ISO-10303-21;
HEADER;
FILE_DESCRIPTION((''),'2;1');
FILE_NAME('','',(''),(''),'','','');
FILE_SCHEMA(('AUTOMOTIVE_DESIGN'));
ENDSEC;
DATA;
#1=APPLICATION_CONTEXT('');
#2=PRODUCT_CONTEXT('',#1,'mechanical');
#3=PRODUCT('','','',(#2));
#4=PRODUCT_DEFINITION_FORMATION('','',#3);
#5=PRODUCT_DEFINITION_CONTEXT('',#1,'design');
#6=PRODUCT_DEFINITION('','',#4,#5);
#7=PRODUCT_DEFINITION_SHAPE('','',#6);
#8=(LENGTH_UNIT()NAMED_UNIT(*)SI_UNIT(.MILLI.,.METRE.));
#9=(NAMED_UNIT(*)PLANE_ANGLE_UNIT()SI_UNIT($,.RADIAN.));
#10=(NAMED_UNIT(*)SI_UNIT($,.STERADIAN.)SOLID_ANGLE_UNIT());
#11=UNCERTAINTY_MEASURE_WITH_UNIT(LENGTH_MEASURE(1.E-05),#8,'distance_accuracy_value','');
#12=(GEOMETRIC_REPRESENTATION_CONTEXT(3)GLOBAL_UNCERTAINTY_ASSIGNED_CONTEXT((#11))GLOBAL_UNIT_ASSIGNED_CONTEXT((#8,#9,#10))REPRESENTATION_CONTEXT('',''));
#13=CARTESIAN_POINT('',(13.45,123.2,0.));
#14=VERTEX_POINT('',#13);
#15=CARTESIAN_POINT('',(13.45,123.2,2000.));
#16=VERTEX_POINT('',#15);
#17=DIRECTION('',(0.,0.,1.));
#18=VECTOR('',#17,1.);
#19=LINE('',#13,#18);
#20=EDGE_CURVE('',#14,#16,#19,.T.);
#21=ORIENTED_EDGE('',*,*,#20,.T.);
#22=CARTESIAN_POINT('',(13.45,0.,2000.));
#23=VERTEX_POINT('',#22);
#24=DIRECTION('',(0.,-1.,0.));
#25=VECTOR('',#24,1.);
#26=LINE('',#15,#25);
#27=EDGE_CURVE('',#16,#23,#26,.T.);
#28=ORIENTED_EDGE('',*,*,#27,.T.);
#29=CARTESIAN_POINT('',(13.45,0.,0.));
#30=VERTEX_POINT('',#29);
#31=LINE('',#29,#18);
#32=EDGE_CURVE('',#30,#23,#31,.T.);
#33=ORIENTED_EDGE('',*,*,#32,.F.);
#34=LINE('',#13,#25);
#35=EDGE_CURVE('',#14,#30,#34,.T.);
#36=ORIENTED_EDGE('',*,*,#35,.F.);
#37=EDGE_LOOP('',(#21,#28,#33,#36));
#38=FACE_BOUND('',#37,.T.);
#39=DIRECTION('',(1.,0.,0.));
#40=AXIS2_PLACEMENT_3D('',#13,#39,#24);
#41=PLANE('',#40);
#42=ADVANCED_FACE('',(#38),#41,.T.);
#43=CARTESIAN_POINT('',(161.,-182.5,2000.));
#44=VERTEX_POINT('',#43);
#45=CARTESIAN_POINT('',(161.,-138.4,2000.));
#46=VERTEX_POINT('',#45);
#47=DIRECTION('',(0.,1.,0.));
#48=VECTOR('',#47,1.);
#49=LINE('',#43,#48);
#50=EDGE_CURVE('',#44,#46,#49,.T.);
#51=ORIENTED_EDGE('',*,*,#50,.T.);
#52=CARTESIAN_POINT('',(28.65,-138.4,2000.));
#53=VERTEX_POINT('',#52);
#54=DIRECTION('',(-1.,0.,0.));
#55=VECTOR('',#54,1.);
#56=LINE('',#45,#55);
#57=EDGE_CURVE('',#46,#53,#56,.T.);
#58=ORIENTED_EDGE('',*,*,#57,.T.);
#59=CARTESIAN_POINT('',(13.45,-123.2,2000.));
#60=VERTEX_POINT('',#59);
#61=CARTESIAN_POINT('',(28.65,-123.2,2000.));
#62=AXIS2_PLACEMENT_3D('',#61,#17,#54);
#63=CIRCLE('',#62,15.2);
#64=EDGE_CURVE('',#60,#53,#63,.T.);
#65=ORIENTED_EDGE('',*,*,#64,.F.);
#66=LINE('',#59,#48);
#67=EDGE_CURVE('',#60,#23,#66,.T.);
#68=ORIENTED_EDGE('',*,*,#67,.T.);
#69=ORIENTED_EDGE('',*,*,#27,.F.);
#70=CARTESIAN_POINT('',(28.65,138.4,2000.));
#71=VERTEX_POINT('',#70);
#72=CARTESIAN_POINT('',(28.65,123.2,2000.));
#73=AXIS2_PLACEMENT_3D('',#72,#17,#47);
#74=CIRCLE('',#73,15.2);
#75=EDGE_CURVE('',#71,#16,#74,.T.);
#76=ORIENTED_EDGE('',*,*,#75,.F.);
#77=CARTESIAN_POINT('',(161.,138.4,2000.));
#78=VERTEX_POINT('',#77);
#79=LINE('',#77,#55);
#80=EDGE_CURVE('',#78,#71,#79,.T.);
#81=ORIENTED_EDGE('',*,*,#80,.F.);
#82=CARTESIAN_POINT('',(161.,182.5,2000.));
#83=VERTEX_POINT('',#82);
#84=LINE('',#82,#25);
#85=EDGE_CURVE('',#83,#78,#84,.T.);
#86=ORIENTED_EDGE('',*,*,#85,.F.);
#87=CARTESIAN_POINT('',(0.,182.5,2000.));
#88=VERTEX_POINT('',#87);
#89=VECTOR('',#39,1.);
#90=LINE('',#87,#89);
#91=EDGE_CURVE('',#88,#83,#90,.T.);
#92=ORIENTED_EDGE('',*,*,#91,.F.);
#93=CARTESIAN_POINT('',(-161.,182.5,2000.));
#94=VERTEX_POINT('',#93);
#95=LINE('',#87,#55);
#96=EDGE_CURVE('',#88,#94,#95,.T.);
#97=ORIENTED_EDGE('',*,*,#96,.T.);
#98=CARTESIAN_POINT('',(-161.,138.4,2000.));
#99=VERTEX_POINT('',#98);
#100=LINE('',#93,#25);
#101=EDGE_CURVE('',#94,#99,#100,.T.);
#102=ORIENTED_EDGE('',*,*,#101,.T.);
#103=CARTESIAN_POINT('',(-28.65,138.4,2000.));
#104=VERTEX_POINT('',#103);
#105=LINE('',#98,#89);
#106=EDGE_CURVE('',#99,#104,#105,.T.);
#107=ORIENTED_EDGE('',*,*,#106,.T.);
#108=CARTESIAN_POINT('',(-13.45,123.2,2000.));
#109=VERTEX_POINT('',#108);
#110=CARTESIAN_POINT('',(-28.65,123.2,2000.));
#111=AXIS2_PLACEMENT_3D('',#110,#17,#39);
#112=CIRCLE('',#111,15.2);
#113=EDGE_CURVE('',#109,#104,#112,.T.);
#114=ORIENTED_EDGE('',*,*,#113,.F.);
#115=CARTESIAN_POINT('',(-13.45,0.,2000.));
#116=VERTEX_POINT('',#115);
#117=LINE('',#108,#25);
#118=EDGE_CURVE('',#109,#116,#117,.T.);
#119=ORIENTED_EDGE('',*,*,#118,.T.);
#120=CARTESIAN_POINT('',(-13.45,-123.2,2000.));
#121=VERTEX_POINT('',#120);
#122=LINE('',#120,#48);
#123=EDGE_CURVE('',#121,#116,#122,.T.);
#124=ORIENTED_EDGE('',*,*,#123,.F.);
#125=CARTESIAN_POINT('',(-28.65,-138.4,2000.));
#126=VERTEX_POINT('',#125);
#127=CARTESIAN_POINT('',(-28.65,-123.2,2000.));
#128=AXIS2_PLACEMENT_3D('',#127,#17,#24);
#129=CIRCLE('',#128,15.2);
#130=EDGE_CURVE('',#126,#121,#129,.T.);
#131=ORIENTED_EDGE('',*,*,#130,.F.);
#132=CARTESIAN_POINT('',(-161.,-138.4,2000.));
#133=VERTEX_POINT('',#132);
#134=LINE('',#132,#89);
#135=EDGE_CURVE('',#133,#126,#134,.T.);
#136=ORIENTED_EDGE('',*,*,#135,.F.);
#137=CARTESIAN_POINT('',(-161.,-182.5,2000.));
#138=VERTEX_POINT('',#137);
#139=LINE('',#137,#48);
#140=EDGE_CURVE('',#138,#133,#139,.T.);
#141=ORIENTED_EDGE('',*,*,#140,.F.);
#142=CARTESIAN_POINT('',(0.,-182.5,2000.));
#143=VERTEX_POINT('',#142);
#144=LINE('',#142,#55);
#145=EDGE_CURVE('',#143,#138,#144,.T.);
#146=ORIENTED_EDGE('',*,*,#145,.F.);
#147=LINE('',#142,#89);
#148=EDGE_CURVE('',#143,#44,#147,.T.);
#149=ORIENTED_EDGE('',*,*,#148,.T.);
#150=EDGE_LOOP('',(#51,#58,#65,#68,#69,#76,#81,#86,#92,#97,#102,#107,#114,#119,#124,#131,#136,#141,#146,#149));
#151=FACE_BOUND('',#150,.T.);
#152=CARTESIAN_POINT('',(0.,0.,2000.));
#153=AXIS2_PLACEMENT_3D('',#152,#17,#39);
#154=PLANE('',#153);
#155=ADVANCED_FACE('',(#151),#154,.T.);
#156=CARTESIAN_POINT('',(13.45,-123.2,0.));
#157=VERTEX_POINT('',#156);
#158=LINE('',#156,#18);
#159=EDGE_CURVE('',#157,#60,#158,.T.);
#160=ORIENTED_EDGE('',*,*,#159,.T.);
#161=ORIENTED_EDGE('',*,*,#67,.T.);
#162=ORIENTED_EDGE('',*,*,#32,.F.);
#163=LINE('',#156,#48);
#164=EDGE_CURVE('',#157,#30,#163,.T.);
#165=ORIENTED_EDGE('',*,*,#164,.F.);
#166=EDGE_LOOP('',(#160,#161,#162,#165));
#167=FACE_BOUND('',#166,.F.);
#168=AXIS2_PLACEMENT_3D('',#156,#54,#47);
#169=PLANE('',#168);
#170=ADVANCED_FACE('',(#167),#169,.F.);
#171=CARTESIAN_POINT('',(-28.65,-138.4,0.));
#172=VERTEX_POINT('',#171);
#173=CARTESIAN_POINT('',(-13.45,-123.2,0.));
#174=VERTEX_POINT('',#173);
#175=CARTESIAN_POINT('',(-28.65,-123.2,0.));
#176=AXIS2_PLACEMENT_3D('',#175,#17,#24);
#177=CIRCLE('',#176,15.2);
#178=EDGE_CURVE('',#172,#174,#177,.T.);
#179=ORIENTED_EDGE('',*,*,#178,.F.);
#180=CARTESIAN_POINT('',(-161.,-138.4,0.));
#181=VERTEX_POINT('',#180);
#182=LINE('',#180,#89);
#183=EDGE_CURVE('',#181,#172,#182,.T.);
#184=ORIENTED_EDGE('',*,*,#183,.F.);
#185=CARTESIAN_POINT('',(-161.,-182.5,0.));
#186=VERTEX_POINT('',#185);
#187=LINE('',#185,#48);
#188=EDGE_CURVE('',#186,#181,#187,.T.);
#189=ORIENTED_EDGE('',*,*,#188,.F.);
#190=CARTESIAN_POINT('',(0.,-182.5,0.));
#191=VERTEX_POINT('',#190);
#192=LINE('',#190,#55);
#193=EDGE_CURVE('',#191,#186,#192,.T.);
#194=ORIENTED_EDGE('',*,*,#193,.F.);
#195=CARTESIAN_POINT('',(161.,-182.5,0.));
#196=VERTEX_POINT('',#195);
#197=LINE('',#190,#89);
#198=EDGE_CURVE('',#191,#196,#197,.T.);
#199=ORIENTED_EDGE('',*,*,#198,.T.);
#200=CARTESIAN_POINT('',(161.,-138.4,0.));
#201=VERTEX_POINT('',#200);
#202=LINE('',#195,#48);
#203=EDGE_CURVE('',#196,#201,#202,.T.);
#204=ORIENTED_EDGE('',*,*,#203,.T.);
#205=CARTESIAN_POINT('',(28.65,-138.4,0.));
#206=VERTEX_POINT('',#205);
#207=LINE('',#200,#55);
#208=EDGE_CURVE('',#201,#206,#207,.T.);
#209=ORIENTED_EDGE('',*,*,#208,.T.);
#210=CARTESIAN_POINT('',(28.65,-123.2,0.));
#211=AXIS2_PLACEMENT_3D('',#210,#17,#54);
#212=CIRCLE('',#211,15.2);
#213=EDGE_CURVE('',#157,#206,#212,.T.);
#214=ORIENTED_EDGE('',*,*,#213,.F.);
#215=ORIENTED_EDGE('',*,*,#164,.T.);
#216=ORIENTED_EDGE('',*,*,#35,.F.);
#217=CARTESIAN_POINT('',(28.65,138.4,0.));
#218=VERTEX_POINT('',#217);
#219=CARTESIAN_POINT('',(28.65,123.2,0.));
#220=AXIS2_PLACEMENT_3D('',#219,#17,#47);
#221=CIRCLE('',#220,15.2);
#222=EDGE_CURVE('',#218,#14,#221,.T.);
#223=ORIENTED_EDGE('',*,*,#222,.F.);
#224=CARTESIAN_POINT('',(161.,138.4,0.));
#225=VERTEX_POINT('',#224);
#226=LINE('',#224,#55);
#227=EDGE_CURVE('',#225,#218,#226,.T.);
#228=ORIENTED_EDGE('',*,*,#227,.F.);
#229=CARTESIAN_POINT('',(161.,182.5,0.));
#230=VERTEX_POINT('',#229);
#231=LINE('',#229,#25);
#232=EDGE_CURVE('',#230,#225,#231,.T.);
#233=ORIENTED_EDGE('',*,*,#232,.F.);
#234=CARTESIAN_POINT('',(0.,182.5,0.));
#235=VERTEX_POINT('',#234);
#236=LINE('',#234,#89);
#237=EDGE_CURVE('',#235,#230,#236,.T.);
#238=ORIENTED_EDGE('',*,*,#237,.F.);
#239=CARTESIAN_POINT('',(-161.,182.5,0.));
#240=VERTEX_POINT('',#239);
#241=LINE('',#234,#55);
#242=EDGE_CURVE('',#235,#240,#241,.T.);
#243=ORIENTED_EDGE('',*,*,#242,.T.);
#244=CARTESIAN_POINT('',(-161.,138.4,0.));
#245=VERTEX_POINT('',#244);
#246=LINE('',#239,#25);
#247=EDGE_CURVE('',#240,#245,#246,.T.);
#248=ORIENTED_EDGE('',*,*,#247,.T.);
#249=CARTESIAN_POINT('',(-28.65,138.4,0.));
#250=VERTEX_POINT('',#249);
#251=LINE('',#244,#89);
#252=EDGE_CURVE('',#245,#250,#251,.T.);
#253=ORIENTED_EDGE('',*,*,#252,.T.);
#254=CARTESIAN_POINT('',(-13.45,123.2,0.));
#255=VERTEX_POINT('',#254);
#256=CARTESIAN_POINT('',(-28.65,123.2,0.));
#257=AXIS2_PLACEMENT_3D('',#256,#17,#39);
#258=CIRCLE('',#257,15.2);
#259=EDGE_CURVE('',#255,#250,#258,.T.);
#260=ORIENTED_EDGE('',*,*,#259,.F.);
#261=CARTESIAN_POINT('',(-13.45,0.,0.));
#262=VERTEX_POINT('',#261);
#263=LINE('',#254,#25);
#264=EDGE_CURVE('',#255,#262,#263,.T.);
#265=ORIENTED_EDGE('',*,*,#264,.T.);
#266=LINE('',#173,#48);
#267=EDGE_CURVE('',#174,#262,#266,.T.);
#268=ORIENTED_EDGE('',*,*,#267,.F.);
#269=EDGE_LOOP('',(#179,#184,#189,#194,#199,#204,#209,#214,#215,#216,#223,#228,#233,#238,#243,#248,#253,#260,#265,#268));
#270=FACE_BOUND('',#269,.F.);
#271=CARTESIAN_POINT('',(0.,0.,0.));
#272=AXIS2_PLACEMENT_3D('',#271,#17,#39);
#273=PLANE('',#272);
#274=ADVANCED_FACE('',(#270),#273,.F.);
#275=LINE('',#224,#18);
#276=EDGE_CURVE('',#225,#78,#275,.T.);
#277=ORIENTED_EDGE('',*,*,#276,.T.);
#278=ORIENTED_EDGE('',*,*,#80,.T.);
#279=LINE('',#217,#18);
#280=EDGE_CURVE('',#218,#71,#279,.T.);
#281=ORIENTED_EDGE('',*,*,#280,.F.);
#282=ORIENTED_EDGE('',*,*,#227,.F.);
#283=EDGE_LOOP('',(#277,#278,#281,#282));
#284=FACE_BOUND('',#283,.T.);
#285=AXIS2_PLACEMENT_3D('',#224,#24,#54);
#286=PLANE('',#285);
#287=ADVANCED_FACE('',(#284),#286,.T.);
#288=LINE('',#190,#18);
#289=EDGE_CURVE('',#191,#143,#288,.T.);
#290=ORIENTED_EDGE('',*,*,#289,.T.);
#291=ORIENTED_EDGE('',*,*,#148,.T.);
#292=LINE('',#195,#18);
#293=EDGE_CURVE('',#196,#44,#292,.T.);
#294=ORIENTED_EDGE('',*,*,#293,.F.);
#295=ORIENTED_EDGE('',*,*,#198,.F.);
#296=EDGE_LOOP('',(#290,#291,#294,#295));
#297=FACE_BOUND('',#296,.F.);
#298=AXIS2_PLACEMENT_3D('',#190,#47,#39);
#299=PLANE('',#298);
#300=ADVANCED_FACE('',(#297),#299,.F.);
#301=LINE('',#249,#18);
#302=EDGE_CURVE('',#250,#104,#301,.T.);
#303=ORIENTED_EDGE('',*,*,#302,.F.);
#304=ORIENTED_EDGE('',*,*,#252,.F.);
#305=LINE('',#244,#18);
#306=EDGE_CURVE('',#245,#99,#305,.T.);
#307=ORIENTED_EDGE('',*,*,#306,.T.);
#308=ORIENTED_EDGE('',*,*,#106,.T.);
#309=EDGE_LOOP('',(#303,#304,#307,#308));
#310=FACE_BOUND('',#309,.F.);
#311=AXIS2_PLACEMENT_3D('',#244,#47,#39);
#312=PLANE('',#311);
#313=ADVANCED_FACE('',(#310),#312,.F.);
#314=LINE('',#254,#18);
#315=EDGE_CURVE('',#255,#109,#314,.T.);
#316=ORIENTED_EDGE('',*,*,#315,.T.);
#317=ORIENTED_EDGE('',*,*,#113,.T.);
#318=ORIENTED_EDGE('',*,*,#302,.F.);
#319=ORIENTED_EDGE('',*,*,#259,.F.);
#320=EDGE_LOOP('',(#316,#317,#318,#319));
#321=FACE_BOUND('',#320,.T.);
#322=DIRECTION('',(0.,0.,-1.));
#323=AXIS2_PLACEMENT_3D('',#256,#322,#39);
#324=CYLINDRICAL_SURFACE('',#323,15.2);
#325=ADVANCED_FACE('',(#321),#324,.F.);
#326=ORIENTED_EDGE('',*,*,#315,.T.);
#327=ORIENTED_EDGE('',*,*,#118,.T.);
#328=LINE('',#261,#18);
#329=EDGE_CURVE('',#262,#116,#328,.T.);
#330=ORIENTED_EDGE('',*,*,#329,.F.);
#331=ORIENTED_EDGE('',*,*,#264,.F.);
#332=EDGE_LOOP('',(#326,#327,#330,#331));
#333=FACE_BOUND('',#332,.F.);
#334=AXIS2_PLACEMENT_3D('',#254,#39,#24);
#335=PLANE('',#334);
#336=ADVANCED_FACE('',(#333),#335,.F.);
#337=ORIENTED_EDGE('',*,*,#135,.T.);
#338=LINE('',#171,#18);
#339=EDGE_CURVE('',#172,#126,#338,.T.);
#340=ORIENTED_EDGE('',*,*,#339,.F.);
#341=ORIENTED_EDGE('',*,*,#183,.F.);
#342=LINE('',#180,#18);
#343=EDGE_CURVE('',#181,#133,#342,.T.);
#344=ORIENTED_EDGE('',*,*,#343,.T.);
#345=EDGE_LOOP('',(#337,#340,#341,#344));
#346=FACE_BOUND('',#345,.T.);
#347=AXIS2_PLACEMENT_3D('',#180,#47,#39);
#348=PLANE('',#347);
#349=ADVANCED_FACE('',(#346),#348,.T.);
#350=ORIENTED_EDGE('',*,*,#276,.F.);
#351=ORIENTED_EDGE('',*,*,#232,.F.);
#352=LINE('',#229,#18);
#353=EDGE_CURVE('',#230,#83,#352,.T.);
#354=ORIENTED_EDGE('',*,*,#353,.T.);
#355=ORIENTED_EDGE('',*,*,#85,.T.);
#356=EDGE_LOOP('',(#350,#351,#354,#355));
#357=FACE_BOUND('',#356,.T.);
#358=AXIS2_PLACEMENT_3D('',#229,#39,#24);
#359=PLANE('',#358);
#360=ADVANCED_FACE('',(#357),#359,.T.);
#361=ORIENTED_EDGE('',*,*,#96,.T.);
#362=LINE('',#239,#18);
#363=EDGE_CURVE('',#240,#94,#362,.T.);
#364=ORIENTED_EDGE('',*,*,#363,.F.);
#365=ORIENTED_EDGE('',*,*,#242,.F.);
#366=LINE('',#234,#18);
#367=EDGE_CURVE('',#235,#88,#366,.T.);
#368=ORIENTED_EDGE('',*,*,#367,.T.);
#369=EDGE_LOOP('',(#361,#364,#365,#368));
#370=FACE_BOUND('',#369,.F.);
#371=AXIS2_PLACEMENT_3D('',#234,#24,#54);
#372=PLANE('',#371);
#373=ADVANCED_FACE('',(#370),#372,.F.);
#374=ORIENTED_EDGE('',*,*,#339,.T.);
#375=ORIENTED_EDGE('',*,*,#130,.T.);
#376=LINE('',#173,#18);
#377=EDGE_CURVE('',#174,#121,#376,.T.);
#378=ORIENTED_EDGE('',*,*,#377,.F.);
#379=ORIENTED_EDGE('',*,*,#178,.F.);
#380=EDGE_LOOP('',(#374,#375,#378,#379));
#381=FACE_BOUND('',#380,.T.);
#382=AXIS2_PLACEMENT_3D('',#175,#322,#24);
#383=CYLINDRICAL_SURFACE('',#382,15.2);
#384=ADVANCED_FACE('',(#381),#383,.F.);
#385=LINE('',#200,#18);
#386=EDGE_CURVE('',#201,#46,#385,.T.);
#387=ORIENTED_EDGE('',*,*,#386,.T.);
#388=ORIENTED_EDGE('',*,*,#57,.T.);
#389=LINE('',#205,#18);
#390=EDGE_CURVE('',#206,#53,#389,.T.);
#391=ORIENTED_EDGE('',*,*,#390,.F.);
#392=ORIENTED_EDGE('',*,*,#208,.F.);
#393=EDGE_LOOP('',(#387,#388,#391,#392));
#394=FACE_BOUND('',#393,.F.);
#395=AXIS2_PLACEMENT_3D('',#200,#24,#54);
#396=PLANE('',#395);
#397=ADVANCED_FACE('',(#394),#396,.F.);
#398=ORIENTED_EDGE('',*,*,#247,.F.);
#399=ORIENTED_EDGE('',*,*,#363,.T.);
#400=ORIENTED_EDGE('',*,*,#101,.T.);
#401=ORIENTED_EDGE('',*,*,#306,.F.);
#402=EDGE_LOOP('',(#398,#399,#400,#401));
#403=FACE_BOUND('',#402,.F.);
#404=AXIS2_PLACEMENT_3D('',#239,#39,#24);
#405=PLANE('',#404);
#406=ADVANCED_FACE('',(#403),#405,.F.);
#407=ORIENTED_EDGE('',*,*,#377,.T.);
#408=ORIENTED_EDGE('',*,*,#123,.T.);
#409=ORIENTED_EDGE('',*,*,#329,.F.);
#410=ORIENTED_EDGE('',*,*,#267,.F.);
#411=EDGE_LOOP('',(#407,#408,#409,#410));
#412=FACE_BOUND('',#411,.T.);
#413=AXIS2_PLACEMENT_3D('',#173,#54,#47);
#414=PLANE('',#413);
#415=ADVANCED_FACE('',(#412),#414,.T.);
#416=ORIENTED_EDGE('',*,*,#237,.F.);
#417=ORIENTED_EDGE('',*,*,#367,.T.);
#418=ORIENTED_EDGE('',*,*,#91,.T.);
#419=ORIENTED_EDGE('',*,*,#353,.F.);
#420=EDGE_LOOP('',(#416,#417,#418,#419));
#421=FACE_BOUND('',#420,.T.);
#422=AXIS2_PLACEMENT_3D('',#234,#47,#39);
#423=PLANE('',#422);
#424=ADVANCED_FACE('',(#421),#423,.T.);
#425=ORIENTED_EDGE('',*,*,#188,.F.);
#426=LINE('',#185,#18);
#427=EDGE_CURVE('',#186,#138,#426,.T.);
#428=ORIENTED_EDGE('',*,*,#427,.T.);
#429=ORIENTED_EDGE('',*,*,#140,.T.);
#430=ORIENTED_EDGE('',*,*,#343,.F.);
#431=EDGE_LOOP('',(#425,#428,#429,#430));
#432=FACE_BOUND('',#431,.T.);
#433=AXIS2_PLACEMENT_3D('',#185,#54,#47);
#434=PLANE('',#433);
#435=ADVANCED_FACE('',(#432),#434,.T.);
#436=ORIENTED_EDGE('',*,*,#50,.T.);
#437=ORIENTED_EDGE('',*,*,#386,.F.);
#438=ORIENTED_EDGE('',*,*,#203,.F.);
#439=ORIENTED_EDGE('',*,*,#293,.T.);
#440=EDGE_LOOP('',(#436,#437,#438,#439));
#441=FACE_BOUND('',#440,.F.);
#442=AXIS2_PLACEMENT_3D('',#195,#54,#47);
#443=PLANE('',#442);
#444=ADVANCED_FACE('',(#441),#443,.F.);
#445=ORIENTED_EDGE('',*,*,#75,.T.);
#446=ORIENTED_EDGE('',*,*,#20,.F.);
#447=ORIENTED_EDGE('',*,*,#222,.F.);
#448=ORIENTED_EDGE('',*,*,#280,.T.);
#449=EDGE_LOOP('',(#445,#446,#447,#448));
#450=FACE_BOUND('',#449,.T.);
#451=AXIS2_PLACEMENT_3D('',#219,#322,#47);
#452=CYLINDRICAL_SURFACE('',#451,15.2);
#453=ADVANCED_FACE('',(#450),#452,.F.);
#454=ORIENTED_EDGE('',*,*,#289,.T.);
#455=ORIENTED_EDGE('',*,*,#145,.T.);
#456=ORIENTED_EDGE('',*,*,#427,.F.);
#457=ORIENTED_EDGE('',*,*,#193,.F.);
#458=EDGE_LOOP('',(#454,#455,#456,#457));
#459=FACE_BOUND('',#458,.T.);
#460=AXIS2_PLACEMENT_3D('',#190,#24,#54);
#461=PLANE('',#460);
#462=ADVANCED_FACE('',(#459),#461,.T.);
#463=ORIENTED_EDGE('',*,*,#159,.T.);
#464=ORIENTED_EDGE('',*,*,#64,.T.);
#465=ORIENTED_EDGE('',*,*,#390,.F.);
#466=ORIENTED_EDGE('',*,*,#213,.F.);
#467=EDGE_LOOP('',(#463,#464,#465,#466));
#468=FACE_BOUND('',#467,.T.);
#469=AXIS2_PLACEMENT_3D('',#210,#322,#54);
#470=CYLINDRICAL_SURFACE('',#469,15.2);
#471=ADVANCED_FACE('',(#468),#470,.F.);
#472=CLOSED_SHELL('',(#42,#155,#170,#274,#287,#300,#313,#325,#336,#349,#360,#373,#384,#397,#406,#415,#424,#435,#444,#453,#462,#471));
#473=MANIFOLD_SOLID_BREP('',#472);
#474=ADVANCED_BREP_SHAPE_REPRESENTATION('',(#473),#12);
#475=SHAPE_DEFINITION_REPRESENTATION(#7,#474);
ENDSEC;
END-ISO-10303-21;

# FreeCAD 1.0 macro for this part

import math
import FreeCAD as App
import Part
import Sketcher
from FreeCAD import Vector

doc = App.newDocument("Part")
body = doc.addObject("PartDesign::Body", "Body")

# Sketch on XY plane
sketch1 = body.newObject("Sketcher::SketchObject", "Sketch")
sketch1.AttachmentSupport = (doc.getObject("XY_Plane"), [""])
sketch1.MapMode = "FlatFace"
sketch1.addGeometry([
    Part.LineSegment(Vector(-161, -138, 0), Vector(-161, -182, 0)),  # 0
    Part.LineSegment(Vector(-161, -182, 0), Vector(161, -182, 0)),  # 1
    Part.LineSegment(Vector(161, -182, 0), Vector(161, -138, 0)),  # 2
    Part.LineSegment(Vector(161, -138, 0), Vector(29, -138, 0)),  # 3
    Part.ArcOfCircle(Part.Circle(Vector(29, -123, 0), Vector(0, 0, 1), 15), math.radians(180), math.radians(270)),  # 4
    Part.LineSegment(Vector(13, -123, 0), Vector(13, 123, 0)),  # 5
    Part.ArcOfCircle(Part.Circle(Vector(29, 123, 0), Vector(0, 0, 1), 15), math.radians(90), math.radians(180)),  # 6
    Part.LineSegment(Vector(29, 138, 0), Vector(161, 138, 0)),  # 7
    Part.LineSegment(Vector(161, 138, 0), Vector(161, 182, 0)),  # 8
    Part.LineSegment(Vector(161, 182, 0), Vector(-161, 182, 0)),  # 9
    Part.LineSegment(Vector(-161, 182, 0), Vector(-161, 138, 0)),  # 10
    Part.LineSegment(Vector(-161, 138, 0), Vector(-29, 138, 0)),  # 11
    Part.ArcOfCircle(Part.Circle(Vector(-29, 123, 0), Vector(0, 0, 1), 15), math.radians(0), math.radians(90)),  # 12
    Part.LineSegment(Vector(-13, 123, 0), Vector(-13, -123, 0)),  # 13
    Part.ArcOfCircle(Part.Circle(Vector(-29, -123, 0), Vector(0, 0, 1), 15), math.radians(-90), math.radians(0)),  # 14
    Part.LineSegment(Vector(-29, -138, 0), Vector(-161, -138, 0)),  # 15
], False)
sketch1.addConstraint([
    Sketcher.Constraint("Coincident", 0, 2, 1, 1),
    Sketcher.Constraint("Coincident", 1, 2, 2, 1),
    Sketcher.Constraint("Coincident", 2, 2, 3, 1),
    Sketcher.Constraint("Tangent", 3, 2, 4, 2),
    Sketcher.Constraint("Tangent", 4, 1, 5, 1),
    Sketcher.Constraint("Tangent", 5, 2, 6, 2),
    Sketcher.Constraint("Tangent", 6, 1, 7, 1),
    Sketcher.Constraint("Coincident", 7, 2, 8, 1),
    Sketcher.Constraint("Coincident", 8, 2, 9, 1),
    Sketcher.Constraint("Coincident", 9, 2, 10, 1),
    Sketcher.Constraint("Coincident", 10, 2, 11, 1),
    Sketcher.Constraint("Tangent", 11, 2, 12, 2),
    Sketcher.Constraint("Tangent", 12, 1, 13, 1),
    Sketcher.Constraint("Tangent", 13, 2, 14, 2),
    Sketcher.Constraint("Tangent", 14, 1, 15, 1),
    Sketcher.Constraint("Coincident", 15, 2, 0, 1),
    Sketcher.Constraint("Vertical", 0),
    Sketcher.Constraint("Horizontal", 1),
    Sketcher.Constraint("Vertical", 2),
    Sketcher.Constraint("Horizontal", 3),
    Sketcher.Constraint("Vertical", 5),
    Sketcher.Constraint("Horizontal", 7),
    Sketcher.Constraint("Vertical", 8),
    Sketcher.Constraint("Horizontal", 9),
    Sketcher.Constraint("Vertical", 10),
    Sketcher.Constraint("Horizontal", 11),
    Sketcher.Constraint("Vertical", 13),
    Sketcher.Constraint("Horizontal", 15),
    Sketcher.Constraint("Equal", 4, 6),
    Sketcher.Constraint("Equal", 6, 12),
    Sketcher.Constraint("Equal", 12, 14),
    Sketcher.Constraint("Symmetric", 4, 3, 12, 3, -1, 1),
    Sketcher.Constraint("Symmetric", 0, 2, 8, 2, -1, 1),
    Sketcher.Constraint("Symmetric", 7, 2, 10, 2, -2),
    Sketcher.Constraint("Symmetric", 2, 2, 15, 2, -2),
    Sketcher.Constraint("Radius", 4, 15.2),
    Sketcher.Constraint("DistanceY", 0, 2, 0, 1, 44.1),
    Sketcher.Constraint("DistanceX", 0, 2, -1, 1, 161.0),
    Sketcher.Constraint("DistanceY", 0, 2, -1, 1, 182.5),
    Sketcher.Constraint("DistanceX", -1, 1, 4, 1, 13.45),
])
pad1 = body.newObject("PartDesign::Pad", "Pad")
pad1.Profile = sketch1
pad1.Length = 2000

doc.recompute()
